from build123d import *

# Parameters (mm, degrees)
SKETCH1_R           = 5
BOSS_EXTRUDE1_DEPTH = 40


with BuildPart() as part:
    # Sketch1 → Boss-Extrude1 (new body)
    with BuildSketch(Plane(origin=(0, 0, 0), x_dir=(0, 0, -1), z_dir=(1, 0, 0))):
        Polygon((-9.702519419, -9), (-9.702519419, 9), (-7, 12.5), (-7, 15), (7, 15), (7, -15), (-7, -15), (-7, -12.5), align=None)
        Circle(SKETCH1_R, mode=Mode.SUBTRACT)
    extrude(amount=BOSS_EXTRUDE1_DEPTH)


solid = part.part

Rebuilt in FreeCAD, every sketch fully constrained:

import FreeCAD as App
import Part
import Sketcher

V = App.Vector


def add_polygon(sketch, points):
    """Adds a closed chain of lines whose ends are joined by coincident constraints."""
    first, n = sketch.GeometryCount, len(points)
    for a, b in zip(points, points[1:] + points[:1]):
        sketch.addGeometry(Part.LineSegment(App.Vector(*a, 0), App.Vector(*b, 0)), False)
    for i in range(n):
        sketch.addConstraint(Sketcher.Constraint("Coincident", first + i, 2, first + (i + 1) % n, 1))

doc = App.newDocument("Part")
body = doc.addObject("PartDesign::Body", "Body")

# Sketch on YZ plane
sketch1 = body.newObject("Sketcher::SketchObject", "Sketch")
sketch1.AttachmentSupport = (doc.getObject("YZ_Plane"), [""])
sketch1.MapMode = "FlatFace"
add_polygon(sketch1, [(9, 9.702519), (-9, 9.702519), (-12.5, 7), (-15, 7), (-15, -7), (15, -7), (15, 7), (12.5, 7)])  # lines 0-7
sketch1.addGeometry(Part.Circle(V(0, 0, 0), V(0, 0, 1), 5), False)  # 8
sketch1.addConstraint(Sketcher.Constraint("Horizontal", 0))
sketch1.addConstraint(Sketcher.Constraint("Horizontal", 2))
sketch1.addConstraint(Sketcher.Constraint("Vertical", 3))
sketch1.addConstraint(Sketcher.Constraint("Horizontal", 4))
sketch1.addConstraint(Sketcher.Constraint("Vertical", 5))
sketch1.addConstraint(Sketcher.Constraint("Horizontal", 6))
sketch1.addConstraint(Sketcher.Constraint("Coincident", 8, 3, -1, 1))
sketch1.addConstraint(Sketcher.Constraint("Symmetric", 2, 2, 4, 2, -1, 1))
sketch1.addConstraint(Sketcher.Constraint("Symmetric", 1, 2, 6, 2, -2))
sketch1.addConstraint(Sketcher.Constraint("Equal", 1, 7))
sketch1.addConstraint(Sketcher.Constraint("Diameter", 8, 10.0))
sketch1.addConstraint(Sketcher.Constraint("DistanceX", 0, 2, 0, 1, 18.0))
sketch1.addConstraint(Sketcher.Constraint("DistanceX", 4, 1, 4, 2, 30.0))
sketch1.addConstraint(Sketcher.Constraint("DistanceY", 3, 2, 3, 1, 14.0))
sketch1.addConstraint(Sketcher.Constraint("DistanceX", 2, 2, 2, 1, 2.5))
sketch1.addConstraint(Sketcher.Constraint("DistanceY", -1, 1, 0, 2, 9.702519))
pad1 = body.newObject("PartDesign::Pad", "Pad")
pad1.Profile = sketch1
pad1.Length = 40

doc.recompute()
